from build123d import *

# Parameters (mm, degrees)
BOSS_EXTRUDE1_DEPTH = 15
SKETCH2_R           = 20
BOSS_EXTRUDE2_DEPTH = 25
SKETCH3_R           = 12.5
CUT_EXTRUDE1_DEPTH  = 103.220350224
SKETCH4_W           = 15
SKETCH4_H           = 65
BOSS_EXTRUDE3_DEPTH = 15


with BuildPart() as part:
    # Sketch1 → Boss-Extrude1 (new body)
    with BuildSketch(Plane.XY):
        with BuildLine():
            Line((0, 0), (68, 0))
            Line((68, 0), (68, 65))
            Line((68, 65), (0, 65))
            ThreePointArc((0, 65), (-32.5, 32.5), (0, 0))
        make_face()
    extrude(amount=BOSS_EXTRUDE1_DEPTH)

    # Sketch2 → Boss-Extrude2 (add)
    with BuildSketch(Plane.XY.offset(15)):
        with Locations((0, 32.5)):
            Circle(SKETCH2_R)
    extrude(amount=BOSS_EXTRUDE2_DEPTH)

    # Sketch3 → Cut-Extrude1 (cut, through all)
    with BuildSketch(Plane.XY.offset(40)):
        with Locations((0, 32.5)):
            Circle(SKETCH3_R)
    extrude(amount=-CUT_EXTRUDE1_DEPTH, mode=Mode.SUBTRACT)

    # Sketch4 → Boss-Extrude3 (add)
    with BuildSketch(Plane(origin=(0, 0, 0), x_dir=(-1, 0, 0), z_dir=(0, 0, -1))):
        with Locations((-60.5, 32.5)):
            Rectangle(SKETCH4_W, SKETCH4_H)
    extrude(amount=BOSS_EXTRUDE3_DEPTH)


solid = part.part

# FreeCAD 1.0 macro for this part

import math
import FreeCAD as App
import Part
import Sketcher

V = App.Vector
Q = App.Units.Quantity


def add_polygon(sketch, points):
    """Adds a closed chain of lines whose ends are joined by coincident constraints."""
    first, n = sketch.GeometryCount, len(points)
    for a, b in zip(points, points[1:] + points[:1]):
        sketch.addGeometry(Part.LineSegment(App.Vector(*a, 0), App.Vector(*b, 0)), False)
    for i in range(n):
        sketch.addConstraint(Sketcher.Constraint("Coincident", first + i, 2, first + (i + 1) % n, 1))

doc = App.newDocument("Part")
body = doc.addObject("PartDesign::Body", "Body")

# Sketch on XY plane
sketch1 = doc.addObject("Sketcher::SketchObject", "Sketch")
body.addObject(sketch1)
sketch1.AttachmentSupport = (doc.XY_Plane, [""])
sketch1.MapMode = "FlatFace"
sketch1.addGeometry([
    Part.LineSegment(V(0, 0, 0), V(68, 0, 0)),
    Part.LineSegment(V(68, 0, 0), V(68, 65, 0)),
    Part.LineSegment(V(68, 65, 0), V(0, 65, 0)),
    Part.ArcOfCircle(Part.Circle(V(0, 32, 0), V(0, 0, 1), 32), math.radians(90), math.radians(270)),
], False)
sketch1.addConstraint([
    Sketcher.Constraint("Coincident", 0, 2, 1, 1),
    Sketcher.Constraint("Coincident", 1, 2, 2, 1),
    Sketcher.Constraint("Tangent", 2, 2, 3, 1),
    Sketcher.Constraint("Tangent", 3, 2, 0, 1),
    Sketcher.Constraint("Horizontal", 0),
    Sketcher.Constraint("Vertical", 1),
    Sketcher.Constraint("Horizontal", 2),
    Sketcher.Constraint("Coincident", 3, 2, -1, 1),
    Sketcher.Constraint("Radius", 3, Q("32.5 mm")),
    Sketcher.Constraint("DistanceX", 0, 1, 0, 2, Q("68 mm")),
])
pad1 = doc.addObject("PartDesign::Pad", "Pad")
body.addObject(pad1)
pad1.Profile = sketch1
pad1.Length = 15

# Sketch on XY plane
sketch2 = doc.addObject("Sketcher::SketchObject", "Sketch001")
body.addObject(sketch2)
sketch2.AttachmentSupport = (doc.XY_Plane, [""])
sketch2.MapMode = "FlatFace"
sketch2.AttachmentOffset = App.Placement(V(0, 0, 15), App.Rotation())
sketch2.addGeometry(Part.Circle(V(0, 32, 0), V(0, 0, 1), 20), False)
sketch2.addConstraint([
    Sketcher.Constraint("PointOnObject", 0, 3, -2),
    Sketcher.Constraint("Diameter", 0, Q("40 mm")),
    Sketcher.Constraint("DistanceY", -1, 1, 0, 3, Q("32.5 mm")),
])
pad2 = doc.addObject("PartDesign::Pad", "Pad001")
body.addObject(pad2)
pad2.Profile = sketch2
pad2.Length = 25

# Sketch on XY plane
sketch3 = doc.addObject("Sketcher::SketchObject", "Sketch002")
body.addObject(sketch3)
sketch3.AttachmentSupport = (doc.XY_Plane, [""])
sketch3.MapMode = "FlatFace"
sketch3.AttachmentOffset = App.Placement(V(0, 0, 40), App.Rotation())
sketch3.addGeometry(Part.Circle(V(0, 32, 0), V(0, 0, 1), 12), False)
sketch3.addConstraint([
    Sketcher.Constraint("PointOnObject", 0, 3, -2),
    Sketcher.Constraint("Diameter", 0, Q("25 mm")),
    Sketcher.Constraint("DistanceY", -1, 1, 0, 3, Q("32.5 mm")),
])
pocket1 = doc.addObject("PartDesign::Pocket", "Pocket")
body.addObject(pocket1)
pocket1.Profile = sketch3
pocket1.Type = "ThroughAll"

# Sketch on XY plane
sketch4 = doc.addObject("Sketcher::SketchObject", "Sketch003")
body.addObject(sketch4)
sketch4.AttachmentSupport = (doc.XY_Plane, [""])
sketch4.MapMode = "FlatFace"
add_polygon(sketch4, [(68, 65), (68, 0), (53, 0), (53, 65)])  # lines 0-3
sketch4.addConstraint([
    Sketcher.Constraint("Vertical", 0),
    Sketcher.Constraint("Horizontal", 1),
    Sketcher.Constraint("Vertical", 2),
    Sketcher.Constraint("Horizontal", 3),
    Sketcher.Constraint("PointOnObject", 0, 2, -1),
    Sketcher.Constraint("DistanceX", 1, 2, 1, 1, Q("15 mm")),
    Sketcher.Constraint("DistanceY", 0, 2, 0, 1, Q("65 mm")),
    Sketcher.Constraint("DistanceX", -1, 1, 0, 2, Q("68 mm")),
])
pad3 = doc.addObject("PartDesign::Pad", "Pad002")
body.addObject(pad3)
pad3.Profile = sketch4
pad3.Length = 15
pad3.Reversed = True

doc.recompute()
